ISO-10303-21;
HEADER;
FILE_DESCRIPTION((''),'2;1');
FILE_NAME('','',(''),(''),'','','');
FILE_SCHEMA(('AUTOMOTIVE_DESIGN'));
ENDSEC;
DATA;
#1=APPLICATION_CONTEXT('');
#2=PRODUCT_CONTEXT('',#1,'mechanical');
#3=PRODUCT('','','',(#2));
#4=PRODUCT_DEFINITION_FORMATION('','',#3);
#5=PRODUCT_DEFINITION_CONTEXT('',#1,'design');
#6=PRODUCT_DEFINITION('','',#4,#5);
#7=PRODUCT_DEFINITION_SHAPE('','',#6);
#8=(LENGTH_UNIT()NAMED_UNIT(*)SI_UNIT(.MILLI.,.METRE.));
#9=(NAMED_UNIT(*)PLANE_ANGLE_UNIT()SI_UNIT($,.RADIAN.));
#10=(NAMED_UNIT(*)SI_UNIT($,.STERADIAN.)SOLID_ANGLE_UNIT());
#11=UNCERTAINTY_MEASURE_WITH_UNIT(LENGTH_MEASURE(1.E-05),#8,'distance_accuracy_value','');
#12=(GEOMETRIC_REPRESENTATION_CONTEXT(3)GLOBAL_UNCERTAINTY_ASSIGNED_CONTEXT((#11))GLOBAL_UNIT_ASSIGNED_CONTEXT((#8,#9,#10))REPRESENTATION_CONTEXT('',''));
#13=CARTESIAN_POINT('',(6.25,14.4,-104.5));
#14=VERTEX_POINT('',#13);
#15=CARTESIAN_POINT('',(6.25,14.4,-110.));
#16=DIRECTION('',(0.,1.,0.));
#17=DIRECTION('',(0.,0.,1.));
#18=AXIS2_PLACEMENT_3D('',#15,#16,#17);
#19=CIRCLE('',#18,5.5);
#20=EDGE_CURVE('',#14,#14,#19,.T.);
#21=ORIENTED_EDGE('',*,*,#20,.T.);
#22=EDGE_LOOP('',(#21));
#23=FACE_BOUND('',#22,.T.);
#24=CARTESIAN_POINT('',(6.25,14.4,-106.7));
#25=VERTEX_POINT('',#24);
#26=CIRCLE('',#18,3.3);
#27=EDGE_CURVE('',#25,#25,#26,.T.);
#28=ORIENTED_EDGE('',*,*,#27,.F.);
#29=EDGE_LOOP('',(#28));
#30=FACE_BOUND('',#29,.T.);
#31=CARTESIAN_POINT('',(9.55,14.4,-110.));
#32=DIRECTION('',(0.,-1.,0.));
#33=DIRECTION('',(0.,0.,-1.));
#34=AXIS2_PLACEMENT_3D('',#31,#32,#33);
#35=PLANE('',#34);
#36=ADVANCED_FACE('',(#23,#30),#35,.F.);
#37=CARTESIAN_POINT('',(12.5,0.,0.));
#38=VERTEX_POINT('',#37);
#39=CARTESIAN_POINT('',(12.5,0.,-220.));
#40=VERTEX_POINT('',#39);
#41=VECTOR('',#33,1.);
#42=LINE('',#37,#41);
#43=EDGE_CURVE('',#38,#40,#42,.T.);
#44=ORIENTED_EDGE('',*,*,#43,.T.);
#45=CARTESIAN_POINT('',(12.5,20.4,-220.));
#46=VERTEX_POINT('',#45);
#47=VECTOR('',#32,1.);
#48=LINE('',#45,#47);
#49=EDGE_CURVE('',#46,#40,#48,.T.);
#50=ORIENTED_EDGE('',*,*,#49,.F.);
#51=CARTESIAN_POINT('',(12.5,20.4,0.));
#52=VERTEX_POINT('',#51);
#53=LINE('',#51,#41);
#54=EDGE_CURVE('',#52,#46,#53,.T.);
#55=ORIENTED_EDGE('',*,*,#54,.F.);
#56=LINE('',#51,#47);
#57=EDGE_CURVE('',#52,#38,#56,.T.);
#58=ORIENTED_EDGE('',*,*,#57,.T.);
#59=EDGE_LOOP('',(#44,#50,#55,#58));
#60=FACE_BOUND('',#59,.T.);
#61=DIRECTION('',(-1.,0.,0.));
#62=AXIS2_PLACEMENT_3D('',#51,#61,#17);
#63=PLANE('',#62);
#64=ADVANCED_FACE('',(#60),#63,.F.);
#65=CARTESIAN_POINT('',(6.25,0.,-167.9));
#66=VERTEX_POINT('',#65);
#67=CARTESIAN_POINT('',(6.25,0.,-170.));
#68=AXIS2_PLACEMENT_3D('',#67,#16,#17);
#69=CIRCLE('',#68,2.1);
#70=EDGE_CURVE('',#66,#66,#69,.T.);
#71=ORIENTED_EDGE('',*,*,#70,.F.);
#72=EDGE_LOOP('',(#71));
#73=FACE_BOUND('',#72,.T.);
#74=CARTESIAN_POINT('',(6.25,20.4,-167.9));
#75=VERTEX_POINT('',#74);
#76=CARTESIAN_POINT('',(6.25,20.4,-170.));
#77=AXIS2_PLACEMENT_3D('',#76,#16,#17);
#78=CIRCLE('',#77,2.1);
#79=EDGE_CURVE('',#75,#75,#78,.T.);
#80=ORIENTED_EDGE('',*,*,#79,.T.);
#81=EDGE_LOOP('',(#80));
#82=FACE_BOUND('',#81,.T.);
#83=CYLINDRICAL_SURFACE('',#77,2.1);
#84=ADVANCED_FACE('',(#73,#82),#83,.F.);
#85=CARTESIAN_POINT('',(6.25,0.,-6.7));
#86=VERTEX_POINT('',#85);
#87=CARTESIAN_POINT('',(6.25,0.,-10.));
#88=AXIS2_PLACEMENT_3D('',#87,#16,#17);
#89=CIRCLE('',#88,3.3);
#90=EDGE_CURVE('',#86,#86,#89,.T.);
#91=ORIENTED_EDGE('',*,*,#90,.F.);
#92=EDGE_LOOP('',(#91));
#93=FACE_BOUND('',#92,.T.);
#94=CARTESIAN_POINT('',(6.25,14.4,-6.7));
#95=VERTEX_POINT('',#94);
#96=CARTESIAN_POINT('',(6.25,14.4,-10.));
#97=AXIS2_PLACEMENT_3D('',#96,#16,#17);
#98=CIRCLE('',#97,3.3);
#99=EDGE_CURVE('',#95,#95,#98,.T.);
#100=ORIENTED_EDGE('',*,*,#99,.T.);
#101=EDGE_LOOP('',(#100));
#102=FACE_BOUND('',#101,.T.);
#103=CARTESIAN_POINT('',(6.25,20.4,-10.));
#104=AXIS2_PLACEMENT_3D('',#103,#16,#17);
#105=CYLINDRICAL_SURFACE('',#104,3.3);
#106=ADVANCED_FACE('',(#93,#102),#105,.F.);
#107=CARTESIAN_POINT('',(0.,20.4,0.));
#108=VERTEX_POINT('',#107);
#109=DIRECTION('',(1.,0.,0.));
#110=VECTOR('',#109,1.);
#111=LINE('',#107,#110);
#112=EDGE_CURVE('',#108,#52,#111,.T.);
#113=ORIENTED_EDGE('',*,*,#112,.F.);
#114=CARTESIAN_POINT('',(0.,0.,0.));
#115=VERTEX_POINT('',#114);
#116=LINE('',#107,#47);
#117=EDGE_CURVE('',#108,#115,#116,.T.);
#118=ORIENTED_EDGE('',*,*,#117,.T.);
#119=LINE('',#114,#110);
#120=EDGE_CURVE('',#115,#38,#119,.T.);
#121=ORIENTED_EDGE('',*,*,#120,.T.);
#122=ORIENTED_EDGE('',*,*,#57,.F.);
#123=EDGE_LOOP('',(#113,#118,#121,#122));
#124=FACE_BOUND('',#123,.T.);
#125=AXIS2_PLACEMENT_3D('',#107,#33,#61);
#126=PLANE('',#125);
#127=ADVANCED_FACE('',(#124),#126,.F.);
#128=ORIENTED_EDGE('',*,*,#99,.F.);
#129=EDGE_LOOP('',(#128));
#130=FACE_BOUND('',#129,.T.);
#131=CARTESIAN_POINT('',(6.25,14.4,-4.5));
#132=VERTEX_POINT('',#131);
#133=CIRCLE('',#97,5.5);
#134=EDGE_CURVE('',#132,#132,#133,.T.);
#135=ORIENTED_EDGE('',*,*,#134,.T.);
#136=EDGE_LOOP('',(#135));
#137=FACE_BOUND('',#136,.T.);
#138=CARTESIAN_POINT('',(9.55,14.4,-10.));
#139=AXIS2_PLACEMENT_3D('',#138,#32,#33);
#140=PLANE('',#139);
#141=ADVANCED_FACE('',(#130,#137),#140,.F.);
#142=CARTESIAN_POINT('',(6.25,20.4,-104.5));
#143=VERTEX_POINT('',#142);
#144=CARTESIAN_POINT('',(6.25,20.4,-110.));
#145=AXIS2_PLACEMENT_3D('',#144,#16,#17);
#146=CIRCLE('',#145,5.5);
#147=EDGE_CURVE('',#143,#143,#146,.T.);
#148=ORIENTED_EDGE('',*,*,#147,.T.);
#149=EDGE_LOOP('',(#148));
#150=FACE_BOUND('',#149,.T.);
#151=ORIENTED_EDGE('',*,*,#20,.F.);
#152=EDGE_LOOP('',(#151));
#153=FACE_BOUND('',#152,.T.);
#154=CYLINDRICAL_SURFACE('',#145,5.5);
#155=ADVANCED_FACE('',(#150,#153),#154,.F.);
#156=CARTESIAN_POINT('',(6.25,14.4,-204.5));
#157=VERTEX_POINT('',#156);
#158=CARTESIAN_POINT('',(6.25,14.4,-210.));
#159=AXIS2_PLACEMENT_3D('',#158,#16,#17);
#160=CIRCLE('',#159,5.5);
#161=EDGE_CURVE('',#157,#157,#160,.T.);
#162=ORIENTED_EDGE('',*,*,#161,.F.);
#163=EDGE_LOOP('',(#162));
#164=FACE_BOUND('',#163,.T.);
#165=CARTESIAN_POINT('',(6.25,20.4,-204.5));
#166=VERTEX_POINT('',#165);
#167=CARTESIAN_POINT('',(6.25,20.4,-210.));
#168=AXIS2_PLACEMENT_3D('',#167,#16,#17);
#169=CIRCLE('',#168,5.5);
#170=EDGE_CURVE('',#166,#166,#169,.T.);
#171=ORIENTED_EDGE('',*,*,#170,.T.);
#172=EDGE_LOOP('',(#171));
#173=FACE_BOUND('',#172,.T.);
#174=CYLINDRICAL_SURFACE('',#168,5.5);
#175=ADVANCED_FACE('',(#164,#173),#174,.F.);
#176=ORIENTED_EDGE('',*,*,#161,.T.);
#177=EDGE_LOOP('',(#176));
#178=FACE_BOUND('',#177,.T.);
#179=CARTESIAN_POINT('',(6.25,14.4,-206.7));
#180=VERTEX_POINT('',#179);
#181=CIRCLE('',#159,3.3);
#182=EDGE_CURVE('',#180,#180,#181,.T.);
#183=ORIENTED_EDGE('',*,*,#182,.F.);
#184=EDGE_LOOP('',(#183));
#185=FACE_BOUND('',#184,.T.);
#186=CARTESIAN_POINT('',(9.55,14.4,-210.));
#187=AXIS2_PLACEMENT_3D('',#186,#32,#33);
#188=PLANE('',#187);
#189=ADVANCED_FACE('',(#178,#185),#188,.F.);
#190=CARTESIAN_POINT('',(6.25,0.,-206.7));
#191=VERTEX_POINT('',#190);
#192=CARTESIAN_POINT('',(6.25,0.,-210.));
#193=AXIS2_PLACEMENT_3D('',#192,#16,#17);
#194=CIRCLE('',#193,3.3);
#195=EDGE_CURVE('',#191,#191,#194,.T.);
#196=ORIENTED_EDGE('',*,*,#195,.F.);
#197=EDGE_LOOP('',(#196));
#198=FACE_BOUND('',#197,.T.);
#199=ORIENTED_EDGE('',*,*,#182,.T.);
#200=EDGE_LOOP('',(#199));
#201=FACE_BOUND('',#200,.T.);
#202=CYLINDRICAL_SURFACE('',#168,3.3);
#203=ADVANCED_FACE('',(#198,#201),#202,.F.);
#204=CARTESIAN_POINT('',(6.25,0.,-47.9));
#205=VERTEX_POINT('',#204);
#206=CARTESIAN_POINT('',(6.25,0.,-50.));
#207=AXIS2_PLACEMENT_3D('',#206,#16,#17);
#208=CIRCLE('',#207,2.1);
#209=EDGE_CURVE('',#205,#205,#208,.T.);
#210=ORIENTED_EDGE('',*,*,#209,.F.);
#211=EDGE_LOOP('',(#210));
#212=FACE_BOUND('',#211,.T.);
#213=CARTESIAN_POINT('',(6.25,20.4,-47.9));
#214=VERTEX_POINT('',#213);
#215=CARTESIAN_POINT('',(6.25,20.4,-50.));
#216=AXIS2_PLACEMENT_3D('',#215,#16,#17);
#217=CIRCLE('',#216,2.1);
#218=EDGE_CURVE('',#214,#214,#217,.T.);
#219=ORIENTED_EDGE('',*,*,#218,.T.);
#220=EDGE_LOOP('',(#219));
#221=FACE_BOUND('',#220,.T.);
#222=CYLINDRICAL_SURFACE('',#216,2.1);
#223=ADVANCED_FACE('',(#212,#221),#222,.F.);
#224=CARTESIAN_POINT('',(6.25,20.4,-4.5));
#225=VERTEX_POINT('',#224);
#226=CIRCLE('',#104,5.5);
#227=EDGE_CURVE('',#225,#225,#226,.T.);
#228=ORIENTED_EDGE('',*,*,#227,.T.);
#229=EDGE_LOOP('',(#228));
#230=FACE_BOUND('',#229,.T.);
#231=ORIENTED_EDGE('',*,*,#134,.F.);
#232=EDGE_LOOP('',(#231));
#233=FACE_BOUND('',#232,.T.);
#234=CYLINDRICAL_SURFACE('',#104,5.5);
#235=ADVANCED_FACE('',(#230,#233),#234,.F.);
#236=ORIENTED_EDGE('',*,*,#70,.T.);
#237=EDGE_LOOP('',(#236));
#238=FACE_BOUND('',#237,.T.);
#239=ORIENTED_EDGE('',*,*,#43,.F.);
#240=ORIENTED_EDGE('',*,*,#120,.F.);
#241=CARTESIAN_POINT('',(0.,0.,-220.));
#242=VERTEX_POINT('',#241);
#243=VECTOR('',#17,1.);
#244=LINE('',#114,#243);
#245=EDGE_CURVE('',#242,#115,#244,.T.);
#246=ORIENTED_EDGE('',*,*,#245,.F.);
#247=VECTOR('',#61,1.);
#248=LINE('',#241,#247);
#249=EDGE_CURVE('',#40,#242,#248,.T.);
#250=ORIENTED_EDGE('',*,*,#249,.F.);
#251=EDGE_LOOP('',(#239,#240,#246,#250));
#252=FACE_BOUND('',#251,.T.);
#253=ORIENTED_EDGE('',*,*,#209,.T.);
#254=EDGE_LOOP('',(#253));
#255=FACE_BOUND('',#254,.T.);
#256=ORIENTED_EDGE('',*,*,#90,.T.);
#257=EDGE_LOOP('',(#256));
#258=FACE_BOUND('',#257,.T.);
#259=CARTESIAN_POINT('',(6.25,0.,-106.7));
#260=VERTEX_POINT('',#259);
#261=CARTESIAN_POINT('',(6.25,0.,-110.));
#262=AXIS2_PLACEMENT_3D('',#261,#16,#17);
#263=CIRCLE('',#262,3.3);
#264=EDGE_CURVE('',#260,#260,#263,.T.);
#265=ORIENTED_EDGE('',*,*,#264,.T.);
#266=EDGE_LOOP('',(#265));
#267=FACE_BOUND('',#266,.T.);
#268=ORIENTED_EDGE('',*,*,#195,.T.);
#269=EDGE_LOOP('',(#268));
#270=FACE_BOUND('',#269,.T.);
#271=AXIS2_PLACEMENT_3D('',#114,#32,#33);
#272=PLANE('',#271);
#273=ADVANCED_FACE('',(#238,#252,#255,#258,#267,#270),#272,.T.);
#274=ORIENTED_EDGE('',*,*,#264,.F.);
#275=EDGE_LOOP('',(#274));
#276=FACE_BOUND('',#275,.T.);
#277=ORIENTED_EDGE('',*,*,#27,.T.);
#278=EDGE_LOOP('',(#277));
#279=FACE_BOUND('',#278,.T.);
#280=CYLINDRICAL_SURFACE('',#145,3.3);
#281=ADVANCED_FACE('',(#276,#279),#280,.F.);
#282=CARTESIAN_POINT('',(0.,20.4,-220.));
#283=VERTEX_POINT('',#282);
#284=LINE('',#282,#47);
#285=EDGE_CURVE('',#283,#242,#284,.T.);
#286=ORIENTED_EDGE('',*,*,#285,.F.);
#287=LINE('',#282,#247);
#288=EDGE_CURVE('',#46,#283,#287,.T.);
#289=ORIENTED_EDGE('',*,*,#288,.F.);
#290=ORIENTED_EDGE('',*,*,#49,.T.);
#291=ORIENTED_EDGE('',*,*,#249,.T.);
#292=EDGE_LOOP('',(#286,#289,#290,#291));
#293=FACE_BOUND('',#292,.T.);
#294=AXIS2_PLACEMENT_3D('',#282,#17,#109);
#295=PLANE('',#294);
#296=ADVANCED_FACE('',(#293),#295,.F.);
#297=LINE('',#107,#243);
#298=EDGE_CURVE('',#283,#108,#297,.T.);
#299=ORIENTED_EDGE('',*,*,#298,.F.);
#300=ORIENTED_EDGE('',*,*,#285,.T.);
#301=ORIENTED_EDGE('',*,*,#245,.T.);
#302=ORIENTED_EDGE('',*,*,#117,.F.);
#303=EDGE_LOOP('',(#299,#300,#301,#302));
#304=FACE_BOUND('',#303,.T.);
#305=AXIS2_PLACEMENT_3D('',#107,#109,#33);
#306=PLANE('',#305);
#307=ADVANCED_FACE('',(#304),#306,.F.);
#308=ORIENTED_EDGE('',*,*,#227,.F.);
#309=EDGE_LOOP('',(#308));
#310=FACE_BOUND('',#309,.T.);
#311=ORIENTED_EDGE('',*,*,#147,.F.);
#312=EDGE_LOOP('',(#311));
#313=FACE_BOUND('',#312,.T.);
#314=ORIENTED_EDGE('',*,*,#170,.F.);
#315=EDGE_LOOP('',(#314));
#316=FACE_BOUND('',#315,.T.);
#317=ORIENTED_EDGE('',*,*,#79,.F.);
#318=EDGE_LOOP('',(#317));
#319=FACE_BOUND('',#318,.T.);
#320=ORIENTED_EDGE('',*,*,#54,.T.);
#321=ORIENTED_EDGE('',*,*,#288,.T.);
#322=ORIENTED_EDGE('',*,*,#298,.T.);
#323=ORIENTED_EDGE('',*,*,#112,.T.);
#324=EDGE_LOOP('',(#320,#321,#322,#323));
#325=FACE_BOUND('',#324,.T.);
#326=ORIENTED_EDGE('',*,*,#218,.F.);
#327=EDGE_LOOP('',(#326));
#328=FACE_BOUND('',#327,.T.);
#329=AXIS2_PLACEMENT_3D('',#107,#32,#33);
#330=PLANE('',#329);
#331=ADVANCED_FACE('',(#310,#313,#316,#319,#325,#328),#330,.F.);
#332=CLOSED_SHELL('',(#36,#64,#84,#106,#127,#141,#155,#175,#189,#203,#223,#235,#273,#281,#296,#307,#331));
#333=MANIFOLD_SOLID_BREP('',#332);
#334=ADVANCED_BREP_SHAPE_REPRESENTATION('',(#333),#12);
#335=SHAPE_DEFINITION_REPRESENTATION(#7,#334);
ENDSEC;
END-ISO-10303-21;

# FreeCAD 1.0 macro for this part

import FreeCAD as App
import Part
import Sketcher

V = App.Vector
Q = App.Units.Quantity


def add_polygon(sketch, points):
    """Adds a closed chain of lines whose ends are joined by coincident constraints."""
    first, n = sketch.GeometryCount, len(points)
    for a, b in zip(points, points[1:] + points[:1]):
        sketch.addGeometry(Part.LineSegment(App.Vector(*a, 0), App.Vector(*b, 0)), False)
    for i in range(n):
        sketch.addConstraint(Sketcher.Constraint("Coincident", first + i, 2, first + (i + 1) % n, 1))

doc = App.newDocument("Part")
params = doc.addObject("Spreadsheet::Sheet", "Params")
for row, (alias, value) in enumerate([
    ("sketch1_height", "220 mm"),
    ("sketch1_width", "12.5 mm"),
    ("pad1_length", "20.4 mm"),
    ("sketch2_diameter", "6.6 mm"),
    ("hole_diameter", "6.6 mm"),
    ("hole_cbore_diameter", "11 mm"),
    ("hole_cbore_depth", "6 mm"),
    ("sketch3_diameter", "4.2 mm"),
    ("hole2_diameter", "4.2 mm"),
], start=1):
    params.set(f"A{row}", alias)
    params.set(f"B{row}", "=" + value)
    params.setAlias(f"B{row}", alias)

body = doc.addObject("PartDesign::Body", "Body")

sketch1 = body.newObject("Sketcher::SketchObject", "Sketch")
sketch1.AttachmentSupport = (doc.getObject("XZ_Plane"), [""])
sketch1.MapMode = "FlatFace"
add_polygon(sketch1, [(0, -220), (0, 0), (12.5, 0), (12.5, -220)])
sketch1.addConstraint([
    Sketcher.Constraint("Vertical", 0),
    Sketcher.Constraint("Horizontal", 1),
    Sketcher.Constraint("Vertical", 2),
    Sketcher.Constraint("Horizontal", 3),
    Sketcher.Constraint("Coincident", 0, 2, -1, 1),
    Sketcher.Constraint("DistanceY", 0, 1, 0, 2, Q("220 mm")),
    Sketcher.Constraint("DistanceX", 1, 1, 1, 2, Q("12.5 mm")),
])
sketch1.setExpression("Constraints[9]", "Params.sketch1_height")
sketch1.setExpression("Constraints[10]", "Params.sketch1_width")
pad1 = body.newObject("PartDesign::Pad", "Pad")
pad1.Profile = sketch1
pad1.setExpression("Length", "Params.pad1_length")
pad1.Reversed = True

sketch2 = body.newObject("Sketcher::SketchObject", "Sketch001")
sketch2.AttachmentSupport = (doc.getObject("XZ_Plane"), [""])
sketch2.MapMode = "FlatFace"
sketch2.AttachmentOffset = App.Placement(V(0, 0, -20.4), App.Rotation())
sketch2.addGeometry([
    Part.Circle(V(6.25, -10, 0), V(0, 0, 1), 3.3),
    Part.Circle(V(6.25, -110, 0), V(0, 0, 1), 3.3),
    Part.Circle(V(6.25, -210, 0), V(0, 0, 1), 3.3),
], False)
sketch2.addConstraint([
    Sketcher.Constraint("Equal", 0, 1),
    Sketcher.Constraint("Equal", 1, 2),
    Sketcher.Constraint("Vertical", 0, 3, 1, 3),
    Sketcher.Constraint("Vertical", 1, 3, 2, 3),
    Sketcher.Constraint("Diameter", 0, Q("6.6 mm")),
    Sketcher.Constraint("DistanceY", 0, 3, -1, 1, Q("10 mm")),
    Sketcher.Constraint("DistanceY", 1, 3, -1, 1, Q("110 mm")),
    Sketcher.Constraint("DistanceY", 2, 3, -1, 1, Q("210 mm")),
    Sketcher.Constraint("DistanceX", -1, 1, 0, 3, Q("6.25 mm")),
])
sketch2.setExpression("Constraints[4]", "Params.sketch2_diameter")
doc.recompute()
hole = body.newObject("PartDesign::Hole", "Hole")
hole.Profile = sketch2
hole.ThreadType = "None"
hole.setExpression("Diameter", "Params.hole_diameter")
hole.DepthType = "ThroughAll"
hole.HoleCutType = "Counterbore"
hole.setExpression("HoleCutDiameter", "Params.hole_cbore_diameter")
hole.setExpression("HoleCutDepth", "Params.hole_cbore_depth")
hole.Reversed = True

sketch3 = body.newObject("Sketcher::SketchObject", "Sketch002")
sketch3.AttachmentSupport = (doc.getObject("XZ_Plane"), [""])
sketch3.MapMode = "FlatFace"
sketch3.AttachmentOffset = App.Placement(V(0, 0, -20.4), App.Rotation())
sketch3.addGeometry([
    Part.Circle(V(6.25, -50, 0), V(0, 0, 1), 2.1),
    Part.Circle(V(6.25, -170, 0), V(0, 0, 1), 2.1),
], False)
sketch3.addConstraint([
    Sketcher.Constraint("Equal", 0, 1),
    Sketcher.Constraint("Vertical", 0, 3, 1, 3),
    Sketcher.Constraint("Diameter", 0, Q("4.2 mm")),
    Sketcher.Constraint("DistanceY", 0, 3, -1, 1, Q("50 mm")),
    Sketcher.Constraint("DistanceY", 1, 3, -1, 1, Q("170 mm")),
    Sketcher.Constraint("DistanceX", -1, 1, 0, 3, Q("6.25 mm")),
])
sketch3.setExpression("Constraints[2]", "Params.sketch3_diameter")
doc.recompute()
hole2 = body.newObject("PartDesign::Hole", "Hole001")
hole2.Profile = sketch3
hole2.ThreadType = "None"
hole2.setExpression("Diameter", "Params.hole2_diameter")
hole2.DepthType = "ThroughAll"
hole2.Reversed = True

doc.recompute()
